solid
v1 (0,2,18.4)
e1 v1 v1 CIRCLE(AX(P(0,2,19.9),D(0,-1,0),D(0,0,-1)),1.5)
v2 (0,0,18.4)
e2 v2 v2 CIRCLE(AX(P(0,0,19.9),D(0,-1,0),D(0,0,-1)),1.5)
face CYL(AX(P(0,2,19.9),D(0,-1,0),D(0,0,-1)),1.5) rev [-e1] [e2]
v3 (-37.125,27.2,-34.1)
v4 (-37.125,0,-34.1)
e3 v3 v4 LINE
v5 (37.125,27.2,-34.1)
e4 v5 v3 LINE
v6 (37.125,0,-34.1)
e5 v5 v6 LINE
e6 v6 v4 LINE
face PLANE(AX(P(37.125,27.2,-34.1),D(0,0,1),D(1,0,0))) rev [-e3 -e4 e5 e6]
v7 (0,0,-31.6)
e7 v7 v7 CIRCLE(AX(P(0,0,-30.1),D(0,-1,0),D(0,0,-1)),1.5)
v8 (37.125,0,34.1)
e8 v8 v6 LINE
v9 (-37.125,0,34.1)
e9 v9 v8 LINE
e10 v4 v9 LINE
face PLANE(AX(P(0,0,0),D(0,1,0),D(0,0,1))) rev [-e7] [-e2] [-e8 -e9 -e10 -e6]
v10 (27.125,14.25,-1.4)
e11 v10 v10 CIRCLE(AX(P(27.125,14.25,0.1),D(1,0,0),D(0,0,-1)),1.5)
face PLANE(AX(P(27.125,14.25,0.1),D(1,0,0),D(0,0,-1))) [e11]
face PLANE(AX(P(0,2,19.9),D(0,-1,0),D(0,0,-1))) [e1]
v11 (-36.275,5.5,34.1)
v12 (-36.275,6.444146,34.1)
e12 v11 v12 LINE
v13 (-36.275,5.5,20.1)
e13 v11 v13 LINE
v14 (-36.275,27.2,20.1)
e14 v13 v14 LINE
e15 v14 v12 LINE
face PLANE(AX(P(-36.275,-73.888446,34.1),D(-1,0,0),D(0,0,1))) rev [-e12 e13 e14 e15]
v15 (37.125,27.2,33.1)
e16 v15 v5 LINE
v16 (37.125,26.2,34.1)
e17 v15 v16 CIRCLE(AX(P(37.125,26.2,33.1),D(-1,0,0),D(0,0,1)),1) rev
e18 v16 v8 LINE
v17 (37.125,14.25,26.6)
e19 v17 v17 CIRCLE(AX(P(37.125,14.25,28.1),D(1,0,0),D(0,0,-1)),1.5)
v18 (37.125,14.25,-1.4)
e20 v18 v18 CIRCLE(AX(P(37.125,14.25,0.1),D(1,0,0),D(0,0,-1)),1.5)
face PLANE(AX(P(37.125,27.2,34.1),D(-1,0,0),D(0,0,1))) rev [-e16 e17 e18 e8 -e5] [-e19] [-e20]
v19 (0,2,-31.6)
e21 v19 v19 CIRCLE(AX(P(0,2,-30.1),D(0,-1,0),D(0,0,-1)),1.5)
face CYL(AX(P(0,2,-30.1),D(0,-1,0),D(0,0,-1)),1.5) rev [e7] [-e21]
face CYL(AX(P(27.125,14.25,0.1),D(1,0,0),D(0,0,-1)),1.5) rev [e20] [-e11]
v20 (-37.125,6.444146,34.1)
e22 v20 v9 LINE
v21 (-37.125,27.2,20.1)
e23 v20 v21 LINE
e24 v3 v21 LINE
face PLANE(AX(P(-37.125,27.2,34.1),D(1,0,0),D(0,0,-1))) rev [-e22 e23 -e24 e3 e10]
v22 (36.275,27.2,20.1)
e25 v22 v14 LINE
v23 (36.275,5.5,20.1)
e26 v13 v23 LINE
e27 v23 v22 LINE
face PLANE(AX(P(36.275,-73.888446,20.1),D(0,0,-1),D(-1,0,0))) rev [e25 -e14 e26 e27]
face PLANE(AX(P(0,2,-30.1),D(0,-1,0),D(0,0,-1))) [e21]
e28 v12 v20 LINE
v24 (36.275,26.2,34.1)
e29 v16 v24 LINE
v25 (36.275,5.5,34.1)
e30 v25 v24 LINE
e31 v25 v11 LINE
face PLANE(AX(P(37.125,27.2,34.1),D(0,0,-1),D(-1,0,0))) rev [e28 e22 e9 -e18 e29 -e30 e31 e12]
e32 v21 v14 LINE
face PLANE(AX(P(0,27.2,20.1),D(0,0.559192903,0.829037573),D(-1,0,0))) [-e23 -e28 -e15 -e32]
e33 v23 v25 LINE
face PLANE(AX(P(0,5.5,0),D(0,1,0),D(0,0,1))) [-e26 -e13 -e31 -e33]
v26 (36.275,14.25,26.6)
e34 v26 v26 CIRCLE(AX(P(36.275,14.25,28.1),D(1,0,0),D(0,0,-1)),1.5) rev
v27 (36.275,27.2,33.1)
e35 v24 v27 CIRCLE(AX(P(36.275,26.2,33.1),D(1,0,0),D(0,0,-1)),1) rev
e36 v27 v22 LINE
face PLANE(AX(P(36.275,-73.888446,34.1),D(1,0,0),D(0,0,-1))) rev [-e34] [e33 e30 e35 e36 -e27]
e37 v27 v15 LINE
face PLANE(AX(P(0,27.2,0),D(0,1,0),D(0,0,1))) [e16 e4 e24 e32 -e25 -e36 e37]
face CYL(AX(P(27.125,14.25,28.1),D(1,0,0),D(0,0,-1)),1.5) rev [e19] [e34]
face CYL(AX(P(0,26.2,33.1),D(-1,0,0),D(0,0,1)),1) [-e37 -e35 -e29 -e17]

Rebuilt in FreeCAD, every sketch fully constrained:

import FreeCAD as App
import Part
import Sketcher
from FreeCAD import Vector


def edges_at(feature, points):
    """Names of the edges that pass closest to the given points."""
    edges = feature.Shape.Edges
    near = lambda p: min(range(len(edges)), key=lambda i: edges[i].distToShape(Part.Vertex(*p))[0])
    return sorted({f"Edge{near(p) + 1}" for p in points})

doc = App.newDocument("Part")
body = doc.addObject("PartDesign::Body", "Body")

# Sketch on XZ plane
sketch1 = body.newObject("Sketcher::SketchObject", "Sketch")
sketch1.AttachmentSupport = (doc.getObject("XZ_Plane"), [""])
sketch1.MapMode = "FlatFace"
sketch1.addGeometry(Part.LineSegment(Vector(-37, -34, 0), Vector(-37, 34, 0)), False)
sketch1.addGeometry(Part.LineSegment(Vector(-37, 34, 0), Vector(37, 34, 0)), False)
sketch1.addGeometry(Part.LineSegment(Vector(37, 34, 0), Vector(37, -34, 0)), False)
sketch1.addGeometry(Part.LineSegment(Vector(37, -34, 0), Vector(-37, -34, 0)), False)
sketch1.addConstraint(Sketcher.Constraint("Coincident", 0, 2, 1, 1))
sketch1.addConstraint(Sketcher.Constraint("Coincident", 1, 2, 2, 1))
sketch1.addConstraint(Sketcher.Constraint("Coincident", 2, 2, 3, 1))
sketch1.addConstraint(Sketcher.Constraint("Coincident", 3, 2, 0, 1))
sketch1.addConstraint(Sketcher.Constraint("Vertical", 0))
sketch1.addConstraint(Sketcher.Constraint("Horizontal", 1))
sketch1.addConstraint(Sketcher.Constraint("Vertical", 2))
sketch1.addConstraint(Sketcher.Constraint("Horizontal", 3))
sketch1.addConstraint(Sketcher.Constraint("Symmetric", 0, 2, 2, 2, -1, 1))
sketch1.addConstraint(Sketcher.Constraint("DistanceY", 0, 1, 0, 2, 68.2))
sketch1.addConstraint(Sketcher.Constraint("DistanceX", 1, 1, 1, 2, 74.25))
pad1 = body.newObject("PartDesign::Pad", "Pad")
pad1.Profile = sketch1
pad1.Length = 27.2
pad1.Reversed = True

# Sketch on YZ plane
sketch2 = body.newObject("Sketcher::SketchObject", "Sketch001")
sketch2.AttachmentSupport = (doc.getObject("YZ_Plane"), [""])
sketch2.MapMode = "FlatFace"
sketch2.AttachmentOffset = App.Placement(Vector(0, 0, 37.125), App.Rotation())
sketch2.addGeometry(Part.Circle(Vector(14.2, 28.1, 0), Vector(0, 0, 1), 1.5), False)
sketch2.addGeometry(Part.Circle(Vector(14.2, 0.1, 0), Vector(0, 0, 1), 1.5), False)
sketch2.addConstraint(Sketcher.Constraint("Equal", 0, 1))
sketch2.addConstraint(Sketcher.Constraint("Vertical", 0, 3, 1, 3))
sketch2.addConstraint(Sketcher.Constraint("Diameter", 0, 3.0))
sketch2.addConstraint(Sketcher.Constraint("DistanceY", 1, 3, 0, 3, 28.0))
sketch2.addConstraint(Sketcher.Constraint("DistanceY", -1, 1, 0, 3, 28.1))
sketch2.addConstraint(Sketcher.Constraint("DistanceX", -1, 1, 0, 3, 14.25))
pocket1 = body.newObject("PartDesign::Pocket", "Pocket")
pocket1.Profile = sketch2
pocket1.Length = 10

# Sketch on XZ plane
sketch3 = body.newObject("Sketcher::SketchObject", "Sketch002")
sketch3.AttachmentSupport = (doc.getObject("XZ_Plane"), [""])
sketch3.MapMode = "FlatFace"
sketch3.AttachmentOffset = App.Placement(Vector(0, 0, -27.2), App.Rotation())
sketch3.addGeometry(Part.LineSegment(Vector(-36, 20, 0), Vector(-36, 34, 0)), False)
sketch3.addGeometry(Part.LineSegment(Vector(-36, 34, 0), Vector(36, 34, 0)), False)
sketch3.addGeometry(Part.LineSegment(Vector(36, 34, 0), Vector(36, 20, 0)), False)
sketch3.addGeometry(Part.LineSegment(Vector(36, 20, 0), Vector(-36, 20, 0)), False)
sketch3.addConstraint(Sketcher.Constraint("Coincident", 0, 2, 1, 1))
sketch3.addConstraint(Sketcher.Constraint("Coincident", 1, 2, 2, 1))
sketch3.addConstraint(Sketcher.Constraint("Coincident", 2, 2, 3, 1))
sketch3.addConstraint(Sketcher.Constraint("Coincident", 3, 2, 0, 1))
sketch3.addConstraint(Sketcher.Constraint("Vertical", 0))
sketch3.addConstraint(Sketcher.Constraint("Horizontal", 1))
sketch3.addConstraint(Sketcher.Constraint("Vertical", 2))
sketch3.addConstraint(Sketcher.Constraint("Horizontal", 3))
sketch3.addConstraint(Sketcher.Constraint("DistanceY", 0, 1, 0, 2, 14.0))
sketch3.addConstraint(Sketcher.Constraint("DistanceX", 1, 1, 1, 2, 72.55))
sketch3.addConstraint(Sketcher.Constraint("DistanceY", -1, 1, 0, 2, 34.1))
sketch3.addConstraint(Sketcher.Constraint("DistanceX", 0, 2, -1, 1, 36.275))
pocket2 = body.newObject("PartDesign::Pocket", "Pocket001")
pocket2.Profile = sketch3
pocket2.Length = 21.7
pocket2.Reversed = True
doc.recompute()

chamfer = body.newObject("PartDesign::Chamfer", "Chamfer")
chamfer.Base = (pocket2, edges_at(pocket2, [(-36.7, 27.2, 34.1)]))
chamfer.ChamferType = "Two distances"
chamfer.Size = 14
chamfer.Size2 = 20.755854
chamfer.FlipDirection = True
doc.recompute()

fillet = body.newObject("PartDesign::Fillet", "Fillet")
fillet.Base = (chamfer, edges_at(chamfer, [(36.7, 27.2, 34.1)]))
fillet.Radius = 1

# Sketch on XZ plane
sketch4 = body.newObject("Sketcher::SketchObject", "Sketch003")
sketch4.AttachmentSupport = (doc.getObject("XZ_Plane"), [""])
sketch4.MapMode = "FlatFace"
sketch4.addGeometry(Part.Circle(Vector(0, -30.1, 0), Vector(0, 0, 1), 1.5), False)
sketch4.addGeometry(Part.Circle(Vector(0, 19.9, 0), Vector(0, 0, 1), 1.5), False)
sketch4.addConstraint(Sketcher.Constraint("Equal", 0, 1))
sketch4.addConstraint(Sketcher.Constraint("PointOnObject", 0, 3, -2))
sketch4.addConstraint(Sketcher.Constraint("PointOnObject", 1, 3, -2))
sketch4.addConstraint(Sketcher.Constraint("Diameter", 0, 3.0))
sketch4.addConstraint(Sketcher.Constraint("DistanceY", 0, 3, 1, 3, 50.0))
sketch4.addConstraint(Sketcher.Constraint("DistanceY", 0, 3, -1, 1, 30.1))
pocket3 = body.newObject("PartDesign::Pocket", "Pocket002")
pocket3.Profile = sketch4
pocket3.Length = 2

doc.recompute()
